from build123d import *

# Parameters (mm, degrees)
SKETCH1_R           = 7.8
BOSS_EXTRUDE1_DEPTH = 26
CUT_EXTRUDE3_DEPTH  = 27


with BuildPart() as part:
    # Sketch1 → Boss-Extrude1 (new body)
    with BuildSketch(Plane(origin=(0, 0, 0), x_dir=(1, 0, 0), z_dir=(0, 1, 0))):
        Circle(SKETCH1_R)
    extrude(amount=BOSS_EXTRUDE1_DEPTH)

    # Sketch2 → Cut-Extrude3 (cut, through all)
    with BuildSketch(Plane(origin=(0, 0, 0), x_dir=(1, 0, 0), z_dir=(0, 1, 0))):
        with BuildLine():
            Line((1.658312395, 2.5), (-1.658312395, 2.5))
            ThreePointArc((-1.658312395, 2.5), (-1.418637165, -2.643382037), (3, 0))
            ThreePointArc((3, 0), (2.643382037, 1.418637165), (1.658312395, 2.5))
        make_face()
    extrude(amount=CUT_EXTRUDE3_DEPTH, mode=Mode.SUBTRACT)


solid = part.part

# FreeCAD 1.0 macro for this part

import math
import FreeCAD as App
import Part
import Sketcher
from FreeCAD import Vector

doc = App.newDocument("Part")
body = doc.addObject("PartDesign::Body", "Body")

# Sketch on XZ plane
sketch1 = body.newObject("Sketcher::SketchObject", "Sketch")
sketch1.AttachmentSupport = (doc.getObject("XZ_Plane"), [""])
sketch1.MapMode = "FlatFace"
sketch1.addGeometry(Part.Circle(Vector(0, 0, 0), Vector(0, 0, 1), 8), False)
sketch1.addConstraint([
    Sketcher.Constraint("Coincident", 0, 3, -1, 1),
    Sketcher.Constraint("Diameter", 0, 15.6),
])
pad1 = body.newObject("PartDesign::Pad", "Pad")
pad1.Profile = sketch1
pad1.Length = 26
pad1.Reversed = True

# Sketch on XZ plane
sketch2 = body.newObject("Sketcher::SketchObject", "Sketch001")
sketch2.AttachmentSupport = (doc.getObject("XZ_Plane"), [""])
sketch2.MapMode = "FlatFace"
sketch2.addGeometry([
    Part.LineSegment(Vector(1.7, -2.5, 0), Vector(-1.7, -2.5, 0)),
    Part.ArcOfCircle(Part.Circle(Vector(0, 0, 0), Vector(0, 0, 1), 3), math.radians(0), math.radians(236)),
    Part.ArcOfCircle(Part.Circle(Vector(0, 0, 0), Vector(0, 0, 1), 3), math.radians(-56), math.radians(0)),
], False)
sketch2.addConstraint([
    Sketcher.Constraint("Coincident", 0, 2, 1, 2),
    Sketcher.Constraint("Tangent", 1, 1, 2, 2),
    Sketcher.Constraint("Coincident", 2, 1, 0, 1),
    Sketcher.Constraint("Horizontal", 0),
    Sketcher.Constraint("Coincident", 1, 3, -1, 1),
    Sketcher.Constraint("Equal", 1, 2),
    Sketcher.Constraint("PointOnObject", 1, 1, -1),
    Sketcher.Constraint("Radius", 1, 3.0),
    Sketcher.Constraint("DistanceY", 0, 2, -1, 1, 2.5),
])
pocket1 = body.newObject("PartDesign::Pocket", "Pocket")
pocket1.Profile = sketch2
pocket1.Type = "ThroughAll"

doc.recompute()
